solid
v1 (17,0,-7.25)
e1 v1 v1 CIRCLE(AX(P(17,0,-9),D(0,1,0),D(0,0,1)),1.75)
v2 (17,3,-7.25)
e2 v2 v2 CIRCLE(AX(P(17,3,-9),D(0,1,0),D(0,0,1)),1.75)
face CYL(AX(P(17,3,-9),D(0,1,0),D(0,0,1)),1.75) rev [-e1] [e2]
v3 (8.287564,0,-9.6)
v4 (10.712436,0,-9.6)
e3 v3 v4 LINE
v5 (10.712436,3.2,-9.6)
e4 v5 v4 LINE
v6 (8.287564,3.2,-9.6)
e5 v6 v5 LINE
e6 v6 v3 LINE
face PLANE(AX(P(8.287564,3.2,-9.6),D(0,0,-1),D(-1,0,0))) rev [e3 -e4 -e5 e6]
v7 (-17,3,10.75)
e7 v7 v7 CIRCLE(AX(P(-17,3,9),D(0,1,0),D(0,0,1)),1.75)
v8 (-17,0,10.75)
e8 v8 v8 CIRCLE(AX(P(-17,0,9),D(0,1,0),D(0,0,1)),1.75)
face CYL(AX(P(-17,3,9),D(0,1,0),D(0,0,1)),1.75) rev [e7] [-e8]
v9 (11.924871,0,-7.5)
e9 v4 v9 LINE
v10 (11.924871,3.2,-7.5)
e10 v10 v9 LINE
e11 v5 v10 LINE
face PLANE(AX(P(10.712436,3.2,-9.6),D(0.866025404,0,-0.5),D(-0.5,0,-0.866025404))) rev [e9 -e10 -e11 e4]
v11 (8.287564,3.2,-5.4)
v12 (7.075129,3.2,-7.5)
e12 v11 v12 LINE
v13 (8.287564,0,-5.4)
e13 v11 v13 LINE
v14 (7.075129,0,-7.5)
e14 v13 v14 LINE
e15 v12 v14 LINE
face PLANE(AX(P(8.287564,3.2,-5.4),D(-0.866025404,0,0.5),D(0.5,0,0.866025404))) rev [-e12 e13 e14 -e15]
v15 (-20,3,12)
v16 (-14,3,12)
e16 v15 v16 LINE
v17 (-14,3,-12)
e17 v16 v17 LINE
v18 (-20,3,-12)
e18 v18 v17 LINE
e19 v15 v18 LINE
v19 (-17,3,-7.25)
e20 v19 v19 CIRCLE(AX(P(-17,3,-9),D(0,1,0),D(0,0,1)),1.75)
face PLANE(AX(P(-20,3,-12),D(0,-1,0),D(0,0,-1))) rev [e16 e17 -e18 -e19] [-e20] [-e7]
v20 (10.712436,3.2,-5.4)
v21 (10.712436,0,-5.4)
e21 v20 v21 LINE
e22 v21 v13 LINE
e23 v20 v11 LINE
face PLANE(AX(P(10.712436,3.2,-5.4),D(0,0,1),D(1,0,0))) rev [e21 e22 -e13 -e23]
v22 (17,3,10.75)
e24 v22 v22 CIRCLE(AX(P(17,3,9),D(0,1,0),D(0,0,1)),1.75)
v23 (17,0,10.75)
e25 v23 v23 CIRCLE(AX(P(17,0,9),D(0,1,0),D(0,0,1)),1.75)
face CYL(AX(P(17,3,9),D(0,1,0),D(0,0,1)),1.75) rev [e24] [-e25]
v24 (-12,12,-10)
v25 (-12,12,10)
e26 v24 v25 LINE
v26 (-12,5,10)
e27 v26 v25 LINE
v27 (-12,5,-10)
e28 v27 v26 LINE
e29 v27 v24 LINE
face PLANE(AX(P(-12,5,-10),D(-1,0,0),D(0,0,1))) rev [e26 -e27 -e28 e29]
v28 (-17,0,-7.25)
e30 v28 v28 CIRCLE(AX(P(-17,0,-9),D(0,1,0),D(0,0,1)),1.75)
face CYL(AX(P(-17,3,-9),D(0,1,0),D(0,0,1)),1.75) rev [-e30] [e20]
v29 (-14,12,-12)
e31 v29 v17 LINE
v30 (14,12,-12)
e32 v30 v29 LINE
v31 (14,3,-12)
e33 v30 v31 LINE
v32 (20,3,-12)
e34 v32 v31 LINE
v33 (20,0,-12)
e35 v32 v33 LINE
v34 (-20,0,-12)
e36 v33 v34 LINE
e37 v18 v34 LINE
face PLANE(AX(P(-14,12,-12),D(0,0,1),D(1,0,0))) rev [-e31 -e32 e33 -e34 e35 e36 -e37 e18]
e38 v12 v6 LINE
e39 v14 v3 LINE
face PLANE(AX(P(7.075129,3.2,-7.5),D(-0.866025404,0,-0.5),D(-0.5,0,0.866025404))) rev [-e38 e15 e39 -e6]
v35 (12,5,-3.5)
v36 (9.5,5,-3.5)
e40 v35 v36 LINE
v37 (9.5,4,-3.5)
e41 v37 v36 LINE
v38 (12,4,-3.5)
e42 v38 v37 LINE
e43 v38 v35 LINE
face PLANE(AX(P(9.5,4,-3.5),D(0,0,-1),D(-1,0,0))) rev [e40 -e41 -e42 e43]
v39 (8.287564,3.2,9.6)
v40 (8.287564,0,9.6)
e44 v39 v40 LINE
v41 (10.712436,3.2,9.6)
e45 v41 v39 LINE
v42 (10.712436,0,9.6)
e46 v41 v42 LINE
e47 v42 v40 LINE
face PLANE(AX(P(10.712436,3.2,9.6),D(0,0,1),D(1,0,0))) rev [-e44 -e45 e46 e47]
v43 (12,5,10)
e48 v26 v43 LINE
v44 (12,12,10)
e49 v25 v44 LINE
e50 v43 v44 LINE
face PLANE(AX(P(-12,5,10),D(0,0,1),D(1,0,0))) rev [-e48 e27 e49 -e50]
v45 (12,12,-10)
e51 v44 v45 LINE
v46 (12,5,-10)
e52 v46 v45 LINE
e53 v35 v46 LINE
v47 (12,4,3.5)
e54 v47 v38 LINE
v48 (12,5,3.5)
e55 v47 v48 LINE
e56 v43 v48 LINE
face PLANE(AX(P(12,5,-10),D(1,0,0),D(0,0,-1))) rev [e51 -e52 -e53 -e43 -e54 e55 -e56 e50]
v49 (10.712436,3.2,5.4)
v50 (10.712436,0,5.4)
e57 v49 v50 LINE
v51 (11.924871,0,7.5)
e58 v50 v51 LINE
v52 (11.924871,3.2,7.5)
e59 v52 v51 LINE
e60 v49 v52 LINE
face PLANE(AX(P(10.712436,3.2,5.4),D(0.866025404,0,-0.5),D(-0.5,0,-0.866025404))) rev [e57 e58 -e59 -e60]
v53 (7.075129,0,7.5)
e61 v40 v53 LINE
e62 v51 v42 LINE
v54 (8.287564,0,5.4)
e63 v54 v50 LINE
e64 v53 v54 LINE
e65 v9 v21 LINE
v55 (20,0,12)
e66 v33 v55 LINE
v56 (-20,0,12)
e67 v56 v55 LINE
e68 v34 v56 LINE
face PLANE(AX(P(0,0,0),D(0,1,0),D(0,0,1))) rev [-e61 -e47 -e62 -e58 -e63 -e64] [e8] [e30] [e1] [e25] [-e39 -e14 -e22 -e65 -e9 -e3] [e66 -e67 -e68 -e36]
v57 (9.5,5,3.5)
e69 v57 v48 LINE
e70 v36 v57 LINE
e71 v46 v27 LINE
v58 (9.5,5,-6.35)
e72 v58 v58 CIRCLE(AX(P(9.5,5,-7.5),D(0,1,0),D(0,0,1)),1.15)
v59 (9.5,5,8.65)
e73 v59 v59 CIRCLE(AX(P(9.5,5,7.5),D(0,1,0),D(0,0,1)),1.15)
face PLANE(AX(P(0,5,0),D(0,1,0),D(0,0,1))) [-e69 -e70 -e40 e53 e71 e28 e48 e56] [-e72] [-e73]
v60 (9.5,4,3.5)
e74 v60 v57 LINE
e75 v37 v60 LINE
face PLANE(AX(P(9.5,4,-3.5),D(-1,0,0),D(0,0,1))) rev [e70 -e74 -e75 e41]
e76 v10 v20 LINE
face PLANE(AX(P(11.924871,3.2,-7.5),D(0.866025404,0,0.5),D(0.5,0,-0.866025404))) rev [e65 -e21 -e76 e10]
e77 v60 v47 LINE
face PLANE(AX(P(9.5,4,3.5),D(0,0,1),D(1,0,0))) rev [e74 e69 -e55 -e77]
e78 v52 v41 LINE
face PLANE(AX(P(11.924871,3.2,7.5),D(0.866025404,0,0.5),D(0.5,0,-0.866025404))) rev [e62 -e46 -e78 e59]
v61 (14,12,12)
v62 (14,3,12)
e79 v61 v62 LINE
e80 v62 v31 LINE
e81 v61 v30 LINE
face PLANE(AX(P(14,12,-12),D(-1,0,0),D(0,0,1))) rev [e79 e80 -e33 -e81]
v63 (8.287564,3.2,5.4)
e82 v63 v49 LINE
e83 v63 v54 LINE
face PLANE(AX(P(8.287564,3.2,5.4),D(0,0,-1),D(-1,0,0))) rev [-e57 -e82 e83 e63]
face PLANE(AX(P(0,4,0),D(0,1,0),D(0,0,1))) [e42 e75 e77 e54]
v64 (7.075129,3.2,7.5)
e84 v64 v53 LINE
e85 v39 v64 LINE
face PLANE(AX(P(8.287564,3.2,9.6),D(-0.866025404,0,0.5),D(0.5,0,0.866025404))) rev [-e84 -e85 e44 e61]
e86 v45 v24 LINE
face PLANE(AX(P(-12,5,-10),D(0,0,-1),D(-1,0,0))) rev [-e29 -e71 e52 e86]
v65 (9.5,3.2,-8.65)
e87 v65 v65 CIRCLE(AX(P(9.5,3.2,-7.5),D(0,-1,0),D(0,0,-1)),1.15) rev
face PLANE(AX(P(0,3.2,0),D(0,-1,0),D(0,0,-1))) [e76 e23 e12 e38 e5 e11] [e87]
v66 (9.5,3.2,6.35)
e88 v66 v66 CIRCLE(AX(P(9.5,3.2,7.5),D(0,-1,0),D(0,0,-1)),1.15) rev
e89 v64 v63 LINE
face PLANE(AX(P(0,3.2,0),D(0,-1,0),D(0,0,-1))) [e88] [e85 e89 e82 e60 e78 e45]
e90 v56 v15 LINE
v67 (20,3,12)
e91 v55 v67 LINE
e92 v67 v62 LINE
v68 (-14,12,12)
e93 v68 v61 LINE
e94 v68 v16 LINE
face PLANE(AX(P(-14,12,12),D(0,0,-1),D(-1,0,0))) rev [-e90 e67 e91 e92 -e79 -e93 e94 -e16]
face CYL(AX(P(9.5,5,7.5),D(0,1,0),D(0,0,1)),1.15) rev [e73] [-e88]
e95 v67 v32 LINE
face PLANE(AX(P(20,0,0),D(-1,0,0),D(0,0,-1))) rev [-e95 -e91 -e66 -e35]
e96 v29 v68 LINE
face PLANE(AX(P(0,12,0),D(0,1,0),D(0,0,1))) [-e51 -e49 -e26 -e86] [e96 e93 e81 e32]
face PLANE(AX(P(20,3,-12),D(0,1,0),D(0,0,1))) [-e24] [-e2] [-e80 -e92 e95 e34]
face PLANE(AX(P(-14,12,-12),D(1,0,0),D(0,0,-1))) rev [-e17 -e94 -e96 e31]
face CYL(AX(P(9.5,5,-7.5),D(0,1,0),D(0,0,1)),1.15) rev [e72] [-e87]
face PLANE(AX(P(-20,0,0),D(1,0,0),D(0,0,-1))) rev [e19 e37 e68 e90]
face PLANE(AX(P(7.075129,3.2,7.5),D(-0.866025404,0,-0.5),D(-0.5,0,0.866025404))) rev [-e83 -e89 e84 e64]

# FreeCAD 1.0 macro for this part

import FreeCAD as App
import Part
import Sketcher
from FreeCAD import Vector
Q = App.Units.Quantity


def add_polygon(sketch, points):
    """Adds a closed chain of lines whose ends are joined by coincident constraints."""
    first, n = sketch.GeometryCount, len(points)
    for a, b in zip(points, points[1:] + points[:1]):
        sketch.addGeometry(Part.LineSegment(App.Vector(*a, 0), App.Vector(*b, 0)), False)
    for i in range(n):
        sketch.addConstraint(Sketcher.Constraint("Coincident", first + i, 2, first + (i + 1) % n, 1))

doc = App.newDocument("Part")
body = doc.addObject("PartDesign::Body", "Body")

# Sketch on XZ plane
sketch1 = body.newObject("Sketcher::SketchObject", "Sketch")
sketch1.AttachmentSupport = (doc.getObject("XZ_Plane"), [""])
sketch1.MapMode = "FlatFace"
add_polygon(sketch1, [(-14, -12), (-14, 12), (14, 12), (14, -12)])  # lines 0-3
sketch1.addConstraint(Sketcher.Constraint("Vertical", 0))
sketch1.addConstraint(Sketcher.Constraint("Horizontal", 1))
sketch1.addConstraint(Sketcher.Constraint("Vertical", 2))
sketch1.addConstraint(Sketcher.Constraint("Horizontal", 3))
sketch1.addConstraint(Sketcher.Constraint("Symmetric", 0, 2, 2, 2, -1, 1))
sketch1.addConstraint(Sketcher.Constraint("DistanceX", 1, 1, 1, 2, Q("28 mm")))
sketch1.addConstraint(Sketcher.Constraint("DistanceY", 0, 1, 0, 2, Q("24 mm")))
pad1 = body.newObject("PartDesign::Pad", "Pad")
pad1.Profile = sketch1
pad1.Length = 12
pad1.Reversed = True

# Sketch on XZ plane
sketch2 = body.newObject("Sketcher::SketchObject", "Sketch001")
sketch2.AttachmentSupport = (doc.getObject("XZ_Plane"), [""])
sketch2.MapMode = "FlatFace"
sketch2.AttachmentOffset = App.Placement(Vector(0, 0, -12), App.Rotation())
add_polygon(sketch2, [(-12, -10), (-12, 10), (12, 10), (12, -10)])  # lines 0-3
sketch2.addConstraint(Sketcher.Constraint("Vertical", 0))
sketch2.addConstraint(Sketcher.Constraint("Horizontal", 1))
sketch2.addConstraint(Sketcher.Constraint("Vertical", 2))
sketch2.addConstraint(Sketcher.Constraint("Horizontal", 3))
sketch2.addConstraint(Sketcher.Constraint("Symmetric", 0, 2, 2, 2, -1, 1))
sketch2.addConstraint(Sketcher.Constraint("DistanceX", 1, 1, 1, 2, Q("24 mm")))
sketch2.addConstraint(Sketcher.Constraint("DistanceY", 0, 1, 0, 2, Q("20 mm")))
pocket1 = body.newObject("PartDesign::Pocket", "Pocket")
pocket1.Profile = sketch2
pocket1.Length = 7
pocket1.Reversed = True

# Sketch on YZ plane
sketch3 = body.newObject("Sketcher::SketchObject", "Sketch002")
sketch3.AttachmentSupport = (doc.getObject("YZ_Plane"), [""])
sketch3.MapMode = "FlatFace"
sketch3.AttachmentOffset = App.Placement(Vector(0, 0, -14), App.Rotation())
add_polygon(sketch3, [(3, -12), (0, -12), (0, 12), (3, 12)])  # lines 0-3
sketch3.addConstraint(Sketcher.Constraint("Horizontal", 0))
sketch3.addConstraint(Sketcher.Constraint("Vertical", 1))
sketch3.addConstraint(Sketcher.Constraint("Horizontal", 2))
sketch3.addConstraint(Sketcher.Constraint("Vertical", 3))
sketch3.addConstraint(Sketcher.Constraint("Symmetric", 0, 2, 1, 2, -1, 1))
sketch3.addConstraint(Sketcher.Constraint("DistanceX", 0, 2, 0, 1, Q("3 mm")))
sketch3.addConstraint(Sketcher.Constraint("DistanceY", 1, 1, 1, 2, Q("24 mm")))
pad2 = body.newObject("PartDesign::Pad", "Pad001")
pad2.Profile = sketch3
pad2.Length = 6
pad2.Reversed = True

# Sketch on XZ plane
sketch4 = body.newObject("Sketcher::SketchObject", "Sketch003")
sketch4.AttachmentSupport = (doc.getObject("XZ_Plane"), [""])
sketch4.MapMode = "FlatFace"
sketch4.AttachmentOffset = App.Placement(Vector(0, 0, -3), App.Rotation())
sketch4.addGeometry(Part.Circle(Vector(-17, -9, 0), Vector(0, 0, 1), 1.75), False)
sketch4.addGeometry(Part.Circle(Vector(-17, 9, 0), Vector(0, 0, 1), 1.75), False)
sketch4.addConstraint(Sketcher.Constraint("Equal", 0, 1))
sketch4.addConstraint(Sketcher.Constraint("Symmetric", 0, 3, 1, 3, -1))
sketch4.addConstraint(Sketcher.Constraint("Diameter", 0, Q("3.5 mm")))
sketch4.addConstraint(Sketcher.Constraint("DistanceX", 0, 3, -1, 1, Q("17 mm")))
sketch4.addConstraint(Sketcher.Constraint("DistanceY", 0, 3, -1, 1, Q("9 mm")))
doc.recompute()
hole = body.newObject("PartDesign::Hole", "Hole")
hole.Profile = sketch4
hole.ThreadType = "None"
hole.Diameter = 3.5
hole.DepthType = "ThroughAll"
hole.Reversed = True
doc.recompute()

mirrored = body.newObject("PartDesign::Mirrored", "Mirrored")
mirrored.Originals = [pad2, hole]
mirrored.MirrorPlane = (doc.getObject("YZ_Plane"), [""])
body.Tip = mirrored

# Sketch on XZ plane
sketch5 = body.newObject("Sketcher::SketchObject", "Sketch004")
sketch5.AttachmentSupport = (doc.getObject("XZ_Plane"), [""])
sketch5.MapMode = "FlatFace"
sketch5.AttachmentOffset = App.Placement(Vector(0, 0, -5), App.Rotation())
sketch5.addGeometry(Part.Circle(Vector(9.5, -7.5, 0), Vector(0, 0, 1), 1.15), False)
sketch5.addGeometry(Part.Circle(Vector(9.5, 7.5, 0), Vector(0, 0, 1), 1.15), False)
sketch5.addConstraint(Sketcher.Constraint("Equal", 0, 1))
sketch5.addConstraint(Sketcher.Constraint("Symmetric", 0, 3, 1, 3, -1))
sketch5.addConstraint(Sketcher.Constraint("Diameter", 0, Q("2.3 mm")))
sketch5.addConstraint(Sketcher.Constraint("DistanceY", 0, 3, 1, 3, Q("15 mm")))
sketch5.addConstraint(Sketcher.Constraint("DistanceX", -1, 1, 0, 3, Q("9.5 mm")))
doc.recompute()
hole2 = body.newObject("PartDesign::Hole", "Hole001")
hole2.Profile = sketch5
hole2.ThreadType = "None"
hole2.Diameter = 2.3
hole2.DepthType = "ThroughAll"
hole2.Reversed = True

# Sketch on XZ plane
sketch6 = body.newObject("Sketcher::SketchObject", "Sketch005")
sketch6.AttachmentSupport = (doc.getObject("XZ_Plane"), [""])
sketch6.MapMode = "FlatFace"
sketch6.AttachmentOffset = App.Placement(Vector(0, 0, -5), App.Rotation())
add_polygon(sketch6, [(9.5, -3.5), (9.5, 3.5), (12, 3.5), (12, -3.5)])  # lines 0-3
sketch6.addConstraint(Sketcher.Constraint("Vertical", 0))
sketch6.addConstraint(Sketcher.Constraint("Horizontal", 1))
sketch6.addConstraint(Sketcher.Constraint("Vertical", 2))
sketch6.addConstraint(Sketcher.Constraint("Horizontal", 3))
sketch6.addConstraint(Sketcher.Constraint("DistanceY", 0, 1, 0, 2, Q("7 mm")))
sketch6.addConstraint(Sketcher.Constraint("DistanceX", 1, 1, 1, 2, Q("2.5 mm")))
sketch6.addConstraint(Sketcher.Constraint("DistanceX", -1, 1, 1, 2, Q("12 mm")))
sketch6.addConstraint(Sketcher.Constraint("DistanceY", -1, 1, 0, 2, Q("3.5 mm")))
pocket2 = body.newObject("PartDesign::Pocket", "Pocket001")
pocket2.Profile = sketch6
pocket2.Length = 1
pocket2.Reversed = True

# Sketch on XZ plane
sketch7 = body.newObject("Sketcher::SketchObject", "Sketch006")
sketch7.AttachmentSupport = (doc.getObject("XZ_Plane"), [""])
sketch7.MapMode = "FlatFace"
add_polygon(sketch7, [(11.924871, 7.5), (10.712436, 9.6), (8.287564, 9.6), (7.075129, 7.5), (8.287564, 5.4), (10.712436, 5.4)])  # lines 0-5
add_polygon(sketch7, [(11.924871, -7.5), (10.712436, -5.4), (8.287564, -5.4), (7.075129, -7.5), (8.287564, -9.6), (10.712436, -9.6)])  # lines 6-11
sketch7.addConstraint(Sketcher.Constraint("Horizontal", 1))
sketch7.addConstraint(Sketcher.Constraint("Horizontal", 4))
sketch7.addConstraint(Sketcher.Constraint("Horizontal", 7))
sketch7.addConstraint(Sketcher.Constraint("Horizontal", 10))
sketch7.addConstraint(Sketcher.Constraint("Symmetric", 4, 2, 6, 2, -1))
sketch7.addConstraint(Sketcher.Constraint("Symmetric", 2, 2, 8, 2, -1))
sketch7.addConstraint(Sketcher.Constraint("Symmetric", 1, 2, 9, 2, -1))
sketch7.addConstraint(Sketcher.Constraint("Symmetric", 5, 2, 11, 2, -1))
sketch7.addConstraint(Sketcher.Constraint("Parallel", 0, 3))
sketch7.addConstraint(Sketcher.Constraint("Parallel", 2, 5))
sketch7.addConstraint(Sketcher.Constraint("Parallel", 3, 6))
sketch7.addConstraint(Sketcher.Constraint("Parallel", 5, 8))
sketch7.addConstraint(Sketcher.Constraint("Parallel", 8, 11))
sketch7.addConstraint(Sketcher.Constraint("Horizontal", 2, 2, 5, 2))
sketch7.addConstraint(Sketcher.Constraint("Vertical", 1, 2, 3, 2))
sketch7.addConstraint(Sketcher.Constraint("Angle", 0, Q("120 deg")))
sketch7.addConstraint(Sketcher.Constraint("DistanceY", 6, 2, 0, 2, Q("15 mm")))
sketch7.addConstraint(Sketcher.Constraint("DistanceY", -1, 1, 0, 2, Q("9.6 mm")))
sketch7.addConstraint(Sketcher.Constraint("DistanceX", 1, 2, 1, 1, Q("2.424871 mm")))
sketch7.addConstraint(Sketcher.Constraint("DistanceX", -1, 1, 2, 2, Q("7.075129 mm")))
pocket3 = body.newObject("PartDesign::Pocket", "Pocket002")
pocket3.Profile = sketch7
pocket3.Length = 3.2

doc.recompute()
